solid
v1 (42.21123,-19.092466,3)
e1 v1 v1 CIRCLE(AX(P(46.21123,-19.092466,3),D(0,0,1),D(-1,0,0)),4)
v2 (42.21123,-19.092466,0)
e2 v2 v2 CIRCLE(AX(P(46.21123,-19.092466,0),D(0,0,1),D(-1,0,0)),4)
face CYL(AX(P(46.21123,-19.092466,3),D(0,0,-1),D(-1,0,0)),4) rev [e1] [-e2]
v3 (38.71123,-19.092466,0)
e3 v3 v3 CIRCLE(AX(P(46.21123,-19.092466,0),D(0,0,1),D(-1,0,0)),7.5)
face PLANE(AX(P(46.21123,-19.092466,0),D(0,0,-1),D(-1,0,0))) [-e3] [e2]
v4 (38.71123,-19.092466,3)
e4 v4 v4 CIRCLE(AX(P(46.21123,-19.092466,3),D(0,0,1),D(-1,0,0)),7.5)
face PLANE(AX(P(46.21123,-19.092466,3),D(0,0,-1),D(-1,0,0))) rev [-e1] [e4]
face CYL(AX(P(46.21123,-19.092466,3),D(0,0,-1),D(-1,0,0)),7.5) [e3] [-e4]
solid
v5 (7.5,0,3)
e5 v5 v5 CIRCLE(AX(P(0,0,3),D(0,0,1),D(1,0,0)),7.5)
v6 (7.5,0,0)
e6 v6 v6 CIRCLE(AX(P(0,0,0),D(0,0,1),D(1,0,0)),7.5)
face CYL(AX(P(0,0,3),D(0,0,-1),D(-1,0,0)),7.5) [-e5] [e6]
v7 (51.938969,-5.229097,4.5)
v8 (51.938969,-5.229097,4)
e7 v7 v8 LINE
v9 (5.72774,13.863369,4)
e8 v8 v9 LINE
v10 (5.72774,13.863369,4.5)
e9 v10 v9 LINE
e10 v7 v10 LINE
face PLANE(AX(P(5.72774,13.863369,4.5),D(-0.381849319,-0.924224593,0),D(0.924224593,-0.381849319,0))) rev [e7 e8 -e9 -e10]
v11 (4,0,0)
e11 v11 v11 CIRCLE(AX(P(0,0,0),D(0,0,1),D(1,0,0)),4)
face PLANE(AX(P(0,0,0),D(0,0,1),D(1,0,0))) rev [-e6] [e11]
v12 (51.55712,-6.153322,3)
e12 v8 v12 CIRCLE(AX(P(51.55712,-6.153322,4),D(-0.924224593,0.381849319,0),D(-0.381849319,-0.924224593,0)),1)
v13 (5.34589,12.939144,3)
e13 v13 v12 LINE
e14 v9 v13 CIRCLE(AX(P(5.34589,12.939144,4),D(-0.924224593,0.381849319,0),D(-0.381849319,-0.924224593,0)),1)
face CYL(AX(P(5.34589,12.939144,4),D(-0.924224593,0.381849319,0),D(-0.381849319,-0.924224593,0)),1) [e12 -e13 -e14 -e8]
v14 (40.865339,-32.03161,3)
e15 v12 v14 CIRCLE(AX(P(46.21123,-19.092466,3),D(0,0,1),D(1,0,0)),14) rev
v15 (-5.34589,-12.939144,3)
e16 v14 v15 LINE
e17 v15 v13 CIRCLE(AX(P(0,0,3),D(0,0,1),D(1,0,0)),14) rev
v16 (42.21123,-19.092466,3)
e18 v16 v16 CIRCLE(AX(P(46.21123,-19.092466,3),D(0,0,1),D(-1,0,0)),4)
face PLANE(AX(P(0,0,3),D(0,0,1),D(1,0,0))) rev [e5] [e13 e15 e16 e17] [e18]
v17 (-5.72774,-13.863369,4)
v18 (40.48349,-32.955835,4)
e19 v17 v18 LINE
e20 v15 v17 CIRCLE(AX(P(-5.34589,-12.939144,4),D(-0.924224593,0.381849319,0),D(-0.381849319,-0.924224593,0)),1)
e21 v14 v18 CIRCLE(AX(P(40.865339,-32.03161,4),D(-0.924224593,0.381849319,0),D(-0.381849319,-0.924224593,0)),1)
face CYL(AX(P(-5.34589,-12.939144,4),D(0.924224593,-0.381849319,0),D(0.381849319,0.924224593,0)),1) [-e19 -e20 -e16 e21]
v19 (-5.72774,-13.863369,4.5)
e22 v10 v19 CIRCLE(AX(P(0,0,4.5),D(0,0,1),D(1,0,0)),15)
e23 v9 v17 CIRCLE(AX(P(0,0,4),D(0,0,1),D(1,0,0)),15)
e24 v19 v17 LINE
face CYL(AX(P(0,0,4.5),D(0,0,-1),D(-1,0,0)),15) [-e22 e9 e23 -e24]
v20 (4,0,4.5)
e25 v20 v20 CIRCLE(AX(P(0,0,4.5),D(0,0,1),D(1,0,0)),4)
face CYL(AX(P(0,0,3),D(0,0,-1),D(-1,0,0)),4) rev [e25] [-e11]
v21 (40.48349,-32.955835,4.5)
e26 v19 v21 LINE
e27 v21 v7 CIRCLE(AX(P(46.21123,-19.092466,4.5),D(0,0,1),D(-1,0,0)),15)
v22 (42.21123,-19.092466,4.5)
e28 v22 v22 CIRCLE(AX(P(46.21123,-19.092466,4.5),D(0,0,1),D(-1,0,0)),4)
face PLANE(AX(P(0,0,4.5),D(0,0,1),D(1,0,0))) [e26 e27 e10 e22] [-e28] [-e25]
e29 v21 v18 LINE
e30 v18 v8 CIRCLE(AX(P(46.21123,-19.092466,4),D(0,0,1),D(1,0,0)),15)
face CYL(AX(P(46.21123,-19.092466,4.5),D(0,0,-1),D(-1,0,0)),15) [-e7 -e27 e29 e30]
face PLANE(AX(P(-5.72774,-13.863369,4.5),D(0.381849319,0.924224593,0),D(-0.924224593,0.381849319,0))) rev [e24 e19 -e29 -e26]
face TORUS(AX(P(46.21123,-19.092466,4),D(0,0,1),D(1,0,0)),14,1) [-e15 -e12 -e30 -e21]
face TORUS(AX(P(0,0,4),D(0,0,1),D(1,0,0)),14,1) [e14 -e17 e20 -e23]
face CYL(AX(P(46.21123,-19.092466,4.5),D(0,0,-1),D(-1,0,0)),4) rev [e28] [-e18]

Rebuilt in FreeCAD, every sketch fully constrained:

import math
import FreeCAD as App
import Part
import Sketcher


def edges_at(feature, points):
    """Names of the edges that pass closest to the given points."""
    edges = feature.Shape.Edges
    near = lambda p: min(range(len(edges)), key=lambda i: edges[i].distToShape(Part.Vertex(*p))[0])
    return sorted({f"Edge{near(p) + 1}" for p in points})

doc = App.newDocument("Part")
body = doc.addObject("PartDesign::Body", "Body")

# Sketch on XY plane
sketch1 = body.newObject("Sketcher::SketchObject", "Sketch")
sketch1.AttachmentSupport = (doc.getObject("XY_Plane"), [""])
sketch1.MapMode = "FlatFace"
sketch1.addGeometry(Part.Circle(App.Vector(0, 0, 0), App.Vector(0, 0, 1), 7.5), False)
sketch1.addGeometry(Part.Circle(App.Vector(0, 0, 0), App.Vector(0, 0, 1), 4), False)
sketch1.addConstraint(Sketcher.Constraint("Coincident", 0, 3, -1, 1))
sketch1.addConstraint(Sketcher.Constraint("Coincident", 1, 3, -1, 1))
sketch1.addConstraint(Sketcher.Constraint("Diameter", 0, 15.0))
sketch1.addConstraint(Sketcher.Constraint("Diameter", 1, 8.0))
pad1 = body.newObject("PartDesign::Pad", "Pad")
pad1.Profile = sketch1
pad1.Length = 3

# Sketch on XY plane
sketch2 = body.newObject("Sketcher::SketchObject", "Sketch001")
sketch2.AttachmentSupport = (doc.getObject("XY_Plane"), [""])
sketch2.MapMode = "FlatFace"
sketch2.AttachmentOffset = App.Placement(App.Vector(0, 0, 3), App.Rotation())
sketch2.addGeometry(Part.LineSegment(App.Vector(51.9, -5.2, 0), App.Vector(5.7, 13.9, 0)), False)
sketch2.addGeometry(Part.ArcOfCircle(Part.Circle(App.Vector(0, 0, 0), App.Vector(0, 0, 1), 15), math.radians(68), math.radians(248)), False)
sketch2.addGeometry(Part.LineSegment(App.Vector(-5.7, -13.9, 0), App.Vector(40.5, -33, 0)), False)
sketch2.addGeometry(Part.ArcOfCircle(Part.Circle(App.Vector(46.2, -19.1, 0), App.Vector(0, 0, 1), 15), math.radians(-112), math.radians(68)), False)
sketch2.addGeometry(Part.Circle(App.Vector(46.2, -19.1, 0), App.Vector(0, 0, 1), 4), False)
sketch2.addGeometry(Part.Circle(App.Vector(0, 0, 0), App.Vector(0, 0, 1), 4), False)
sketch2.addConstraint(Sketcher.Constraint("Tangent", 0, 2, 1, 1))
sketch2.addConstraint(Sketcher.Constraint("Tangent", 1, 2, 2, 1))
sketch2.addConstraint(Sketcher.Constraint("Tangent", 2, 2, 3, 1))
sketch2.addConstraint(Sketcher.Constraint("Tangent", 3, 2, 0, 1))
sketch2.addConstraint(Sketcher.Constraint("Coincident", 1, 3, -1, 1))
sketch2.addConstraint(Sketcher.Constraint("Coincident", 5, 3, -1, 1))
sketch2.addConstraint(Sketcher.Constraint("Coincident", 4, 3, 3, 3))
sketch2.addConstraint(Sketcher.Constraint("Equal", 1, 3))
sketch2.addConstraint(Sketcher.Constraint("Equal", 4, 5))
sketch2.addConstraint(Sketcher.Constraint("Diameter", 4, 8.0))
sketch2.addConstraint(Sketcher.Constraint("Radius", 1, 15.0))
sketch2.addConstraint(Sketcher.Constraint("Distance", 0, 50.0))
sketch2.addConstraint(Sketcher.Constraint("DistanceX", -1, 1, 3, 3, 46.21123))
pad2 = body.newObject("PartDesign::Pad", "Pad001")
pad2.Profile = sketch2
pad2.Length = 1.5
doc.recompute()

fillet = body.newObject("PartDesign::Fillet", "Fillet")
fillet.Base = (pad2, edges_at(pad2, [
    (-13.863, 5.728, 3),
    (17.378, -23.41, 3),
    (60.075, -24.82, 3),
    (28.833, 4.317, 3),
]))
fillet.Radius = 1
body2 = doc.addObject("PartDesign::Body", "Body001")

# Sketch on XY plane
sketch3 = body2.newObject("Sketcher::SketchObject", "Sketch002")
sketch3.AttachmentSupport = (doc.getObject("XY_Plane001"), [""])
sketch3.MapMode = "FlatFace"
sketch3.addGeometry(Part.Circle(App.Vector(46.2, -19.1, 0), App.Vector(0, 0, 1), 7.5), False)
sketch3.addGeometry(Part.Circle(App.Vector(46.2, -19.1, 0), App.Vector(0, 0, 1), 4), False)
sketch3.addConstraint(Sketcher.Constraint("Coincident", 1, 3, 0, 3))
sketch3.addConstraint(Sketcher.Constraint("Diameter", 0, 15.0))
sketch3.addConstraint(Sketcher.Constraint("Diameter", 1, 8.0))
sketch3.addConstraint(Sketcher.Constraint("DistanceX", -1, 1, 0, 3, 46.21123))
sketch3.addConstraint(Sketcher.Constraint("DistanceY", 0, 3, -1, 1, 19.092466))
pad3 = body2.newObject("PartDesign::Pad", "Pad002")
pad3.Profile = sketch3
pad3.Length = 3

doc.recompute()
